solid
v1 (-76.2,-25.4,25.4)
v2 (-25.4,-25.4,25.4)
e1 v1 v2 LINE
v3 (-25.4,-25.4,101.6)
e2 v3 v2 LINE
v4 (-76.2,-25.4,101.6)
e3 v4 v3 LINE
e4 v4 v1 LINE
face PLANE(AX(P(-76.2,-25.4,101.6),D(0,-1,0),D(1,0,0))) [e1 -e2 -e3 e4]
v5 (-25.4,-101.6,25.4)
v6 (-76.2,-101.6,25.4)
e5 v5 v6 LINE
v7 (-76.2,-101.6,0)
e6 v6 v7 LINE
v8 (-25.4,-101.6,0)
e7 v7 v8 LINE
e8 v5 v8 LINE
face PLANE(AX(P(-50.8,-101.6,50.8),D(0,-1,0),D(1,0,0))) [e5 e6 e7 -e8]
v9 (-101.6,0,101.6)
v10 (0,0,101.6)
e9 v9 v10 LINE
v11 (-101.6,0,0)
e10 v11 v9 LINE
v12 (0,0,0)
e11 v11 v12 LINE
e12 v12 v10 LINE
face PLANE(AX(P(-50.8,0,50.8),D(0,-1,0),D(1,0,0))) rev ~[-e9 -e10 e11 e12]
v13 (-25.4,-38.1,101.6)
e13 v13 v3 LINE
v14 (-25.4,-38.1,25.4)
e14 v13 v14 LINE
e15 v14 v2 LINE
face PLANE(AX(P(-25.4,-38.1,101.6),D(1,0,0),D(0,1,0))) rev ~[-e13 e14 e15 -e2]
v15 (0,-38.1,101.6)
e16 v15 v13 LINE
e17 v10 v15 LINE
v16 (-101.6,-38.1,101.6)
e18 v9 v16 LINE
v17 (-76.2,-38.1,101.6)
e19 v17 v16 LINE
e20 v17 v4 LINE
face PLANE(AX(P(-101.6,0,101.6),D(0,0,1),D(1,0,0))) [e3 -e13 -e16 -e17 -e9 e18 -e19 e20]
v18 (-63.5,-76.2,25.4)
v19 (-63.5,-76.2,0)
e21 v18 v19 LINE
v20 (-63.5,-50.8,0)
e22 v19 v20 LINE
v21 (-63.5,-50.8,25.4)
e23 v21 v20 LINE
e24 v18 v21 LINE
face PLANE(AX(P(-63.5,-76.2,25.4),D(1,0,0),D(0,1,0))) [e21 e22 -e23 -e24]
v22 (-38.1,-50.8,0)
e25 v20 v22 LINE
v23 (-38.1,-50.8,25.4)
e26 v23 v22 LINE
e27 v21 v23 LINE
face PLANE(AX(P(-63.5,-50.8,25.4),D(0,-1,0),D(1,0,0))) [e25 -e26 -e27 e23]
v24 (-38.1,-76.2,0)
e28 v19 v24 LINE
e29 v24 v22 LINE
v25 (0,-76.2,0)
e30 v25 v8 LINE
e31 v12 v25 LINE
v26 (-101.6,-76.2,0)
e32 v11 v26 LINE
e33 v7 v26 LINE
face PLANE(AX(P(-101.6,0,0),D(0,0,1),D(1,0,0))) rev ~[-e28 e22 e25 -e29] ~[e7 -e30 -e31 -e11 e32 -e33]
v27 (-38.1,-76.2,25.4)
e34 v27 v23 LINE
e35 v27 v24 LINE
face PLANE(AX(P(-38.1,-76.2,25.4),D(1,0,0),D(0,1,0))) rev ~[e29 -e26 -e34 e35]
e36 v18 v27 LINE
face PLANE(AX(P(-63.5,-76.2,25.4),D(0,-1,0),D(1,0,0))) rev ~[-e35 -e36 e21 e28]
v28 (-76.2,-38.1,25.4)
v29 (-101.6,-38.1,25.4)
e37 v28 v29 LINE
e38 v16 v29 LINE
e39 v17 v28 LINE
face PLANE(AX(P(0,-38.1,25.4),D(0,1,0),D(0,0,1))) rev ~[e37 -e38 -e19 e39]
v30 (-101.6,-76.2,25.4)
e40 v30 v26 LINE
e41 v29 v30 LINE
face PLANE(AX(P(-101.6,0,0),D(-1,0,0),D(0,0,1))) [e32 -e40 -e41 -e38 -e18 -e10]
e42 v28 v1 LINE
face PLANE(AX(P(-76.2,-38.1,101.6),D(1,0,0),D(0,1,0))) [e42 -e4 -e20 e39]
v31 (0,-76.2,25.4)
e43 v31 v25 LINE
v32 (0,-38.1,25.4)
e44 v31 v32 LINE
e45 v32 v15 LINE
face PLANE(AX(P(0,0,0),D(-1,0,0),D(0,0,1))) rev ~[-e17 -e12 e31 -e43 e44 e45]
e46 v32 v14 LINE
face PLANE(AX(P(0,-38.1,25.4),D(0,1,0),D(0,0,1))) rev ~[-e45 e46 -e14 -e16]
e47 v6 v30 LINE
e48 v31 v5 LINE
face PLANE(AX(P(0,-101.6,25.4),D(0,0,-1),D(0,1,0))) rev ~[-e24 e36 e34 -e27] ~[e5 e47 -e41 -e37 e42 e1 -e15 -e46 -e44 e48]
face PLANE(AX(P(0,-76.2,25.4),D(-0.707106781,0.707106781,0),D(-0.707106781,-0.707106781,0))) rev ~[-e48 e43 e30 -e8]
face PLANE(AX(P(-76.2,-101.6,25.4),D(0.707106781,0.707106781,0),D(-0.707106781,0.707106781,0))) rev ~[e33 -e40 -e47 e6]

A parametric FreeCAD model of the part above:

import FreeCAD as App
import Part
import Sketcher

V = App.Vector
Q = App.Units.Quantity


def add_polygon(sketch, points):
    """Adds a closed chain of lines whose ends are joined by coincident constraints."""
    first, n = sketch.GeometryCount, len(points)
    for a, b in zip(points, points[1:] + points[:1]):
        sketch.addGeometry(Part.LineSegment(App.Vector(*a, 0), App.Vector(*b, 0)), False)
    for i in range(n):
        sketch.addConstraint(Sketcher.Constraint("Coincident", first + i, 2, first + (i + 1) % n, 1))

doc = App.newDocument("Part")
body = doc.addObject("PartDesign::Body", "Body")

sketch1 = doc.addObject("Sketcher::SketchObject", "Sketch")
body.addObject(sketch1)
sketch1.AttachmentSupport = (doc.XZ_Plane, [""])
sketch1.MapMode = "FlatFace"
add_polygon(sketch1, [(-102, 102), (-102, 0), (0, 0), (0, 102)])
sketch1.addConstraint(Sketcher.Constraint("Vertical", 0))
sketch1.addConstraint(Sketcher.Constraint("Horizontal", 1))
sketch1.addConstraint(Sketcher.Constraint("Vertical", 2))
sketch1.addConstraint(Sketcher.Constraint("Horizontal", 3))
sketch1.addConstraint(Sketcher.Constraint("Coincident", 1, 2, -1, 1))
sketch1.addConstraint(Sketcher.Constraint("Equal", 3, 0))
sketch1.addConstraint(Sketcher.Constraint("DistanceX", 1, 1, 1, 2, Q("4 in")))
pad1 = doc.addObject("PartDesign::Pad", "Pad")
body.addObject(pad1)
pad1.Profile = sketch1
pad1.Length = Q("4 in")

sketch2 = doc.addObject("Sketcher::SketchObject", "Sketch001")
body.addObject(sketch2)
sketch2.AttachmentSupport = (doc.YZ_Plane, [""])
sketch2.MapMode = "FlatFace"
add_polygon(sketch2, [(-102, 102), (-102, 25), (-38, 25), (-38, 102)])
sketch2.addConstraint(Sketcher.Constraint("Vertical", 0))
sketch2.addConstraint(Sketcher.Constraint("Horizontal", 1))
sketch2.addConstraint(Sketcher.Constraint("Vertical", 2))
sketch2.addConstraint(Sketcher.Constraint("Horizontal", 3))
sketch2.addConstraint(Sketcher.Constraint("DistanceY", 0, 2, 0, 1, Q("3 in")))
sketch2.addConstraint(Sketcher.Constraint("DistanceX", 1, 1, 1, 2, Q("2.5 in")))
sketch2.addConstraint(Sketcher.Constraint("DistanceX", 0, 2, -1, 1, Q("4 in")))
sketch2.addConstraint(Sketcher.Constraint("DistanceY", -1, 1, 0, 2, Q("1 in")))
pocket1 = doc.addObject("PartDesign::Pocket", "Pocket")
body.addObject(pocket1)
pocket1.Profile = sketch2
pocket1.Length = Q("5 in")

sketch3 = doc.addObject("Sketcher::SketchObject", "Sketch002")
body.addObject(sketch3)
sketch3.AttachmentSupport = (doc.XY_Plane, [""])
sketch3.MapMode = "FlatFace"
sketch3.AttachmentOffset = App.Placement(V(0, 0, 1 * 25.4), App.Rotation())
add_polygon(sketch3, [(-25, -102), (0, -102), (0, -76)])
sketch3.addConstraint(Sketcher.Constraint("Horizontal", 0))
sketch3.addConstraint(Sketcher.Constraint("Vertical", 1))
sketch3.addConstraint(Sketcher.Constraint("PointOnObject", 0, 2, -2))
sketch3.addConstraint(Sketcher.Constraint("Equal", 0, 1))
sketch3.addConstraint(Sketcher.Constraint("DistanceX", 0, 1, 0, 2, Q("1 in")))
sketch3.addConstraint(Sketcher.Constraint("DistanceY", 0, 2, -1, 1, Q("4 in")))
pocket2 = doc.addObject("PartDesign::Pocket", "Pocket001")
body.addObject(pocket2)
pocket2.Profile = sketch3
pocket2.Length = Q("1 in")

sketch4 = doc.addObject("Sketcher::SketchObject", "Sketch003")
body.addObject(sketch4)
sketch4.AttachmentSupport = (doc.XY_Plane, [""])
sketch4.MapMode = "FlatFace"
sketch4.AttachmentOffset = App.Placement(V(0, 0, 1 * 25.4), App.Rotation())
add_polygon(sketch4, [(-102, -76), (-102, -102), (-76, -102)])
sketch4.addConstraint(Sketcher.Constraint("Vertical", 0))
sketch4.addConstraint(Sketcher.Constraint("Horizontal", 1))
sketch4.addConstraint(Sketcher.Constraint("Equal", 1, 0))
sketch4.addConstraint(Sketcher.Constraint("DistanceX", 1, 1, 1, 2, Q("1 in")))
sketch4.addConstraint(Sketcher.Constraint("DistanceX", 0, 2, -1, 1, Q("4 in")))
sketch4.addConstraint(Sketcher.Constraint("DistanceY", 0, 2, -1, 1, Q("4 in")))
pocket3 = doc.addObject("PartDesign::Pocket", "Pocket002")
body.addObject(pocket3)
pocket3.Profile = sketch4
pocket3.Length = Q("1 in")

sketch5 = doc.addObject("Sketcher::SketchObject", "Sketch004")
body.addObject(sketch5)
sketch5.AttachmentSupport = (doc.XY_Plane, [""])
sketch5.MapMode = "FlatFace"
sketch5.AttachmentOffset = App.Placement(V(0, 0, 4 * 25.4), App.Rotation())
add_polygon(sketch5, [(-76, -25), (-76, -38), (-25, -38), (-25, -25)])
sketch5.addConstraint(Sketcher.Constraint("Vertical", 0))
sketch5.addConstraint(Sketcher.Constraint("Horizontal", 1))
sketch5.addConstraint(Sketcher.Constraint("Vertical", 2))
sketch5.addConstraint(Sketcher.Constraint("Horizontal", 3))
sketch5.addConstraint(Sketcher.Constraint("DistanceX", 1, 1, 1, 2, Q("2 in")))
sketch5.addConstraint(Sketcher.Constraint("DistanceY", 0, 2, 0, 1, Q("0.5 in")))
sketch5.addConstraint(Sketcher.Constraint("DistanceX", 0, 2, -1, 1, Q("3 in")))
sketch5.addConstraint(Sketcher.Constraint("DistanceY", 2, 2, -1, 1, Q("1 in")))
pocket4 = doc.addObject("PartDesign::Pocket", "Pocket003")
body.addObject(pocket4)
pocket4.Profile = sketch5
pocket4.Length = Q("3 in")

sketch6 = doc.addObject("Sketcher::SketchObject", "Sketch005")
body.addObject(sketch6)
sketch6.AttachmentSupport = (doc.XY_Plane, [""])
sketch6.MapMode = "FlatFace"
sketch6.AttachmentOffset = App.Placement(V(0, 0, 1 * 25.4), App.Rotation())
add_polygon(sketch6, [(-64, -51), (-64, -76), (-38, -76), (-38, -51)])
sketch6.addConstraint(Sketcher.Constraint("Vertical", 0))
sketch6.addConstraint(Sketcher.Constraint("Horizontal", 1))
sketch6.addConstraint(Sketcher.Constraint("Vertical", 2))
sketch6.addConstraint(Sketcher.Constraint("Horizontal", 3))
sketch6.addConstraint(Sketcher.Constraint("Equal", 3, 0))
sketch6.addConstraint(Sketcher.Constraint("DistanceX", 1, 1, 1, 2, Q("1 in")))
sketch6.addConstraint(Sketcher.Constraint("DistanceY", 0, 2, -1, 1, Q("3 in")))
sketch6.addConstraint(Sketcher.Constraint("DistanceX", 0, 2, -1, 1, Q("2.5 in")))
pocket5 = doc.addObject("PartDesign::Pocket", "Pocket004")
body.addObject(pocket5)
pocket5.Profile = sketch6
pocket5.Length = Q("5 in")

doc.recompute()
